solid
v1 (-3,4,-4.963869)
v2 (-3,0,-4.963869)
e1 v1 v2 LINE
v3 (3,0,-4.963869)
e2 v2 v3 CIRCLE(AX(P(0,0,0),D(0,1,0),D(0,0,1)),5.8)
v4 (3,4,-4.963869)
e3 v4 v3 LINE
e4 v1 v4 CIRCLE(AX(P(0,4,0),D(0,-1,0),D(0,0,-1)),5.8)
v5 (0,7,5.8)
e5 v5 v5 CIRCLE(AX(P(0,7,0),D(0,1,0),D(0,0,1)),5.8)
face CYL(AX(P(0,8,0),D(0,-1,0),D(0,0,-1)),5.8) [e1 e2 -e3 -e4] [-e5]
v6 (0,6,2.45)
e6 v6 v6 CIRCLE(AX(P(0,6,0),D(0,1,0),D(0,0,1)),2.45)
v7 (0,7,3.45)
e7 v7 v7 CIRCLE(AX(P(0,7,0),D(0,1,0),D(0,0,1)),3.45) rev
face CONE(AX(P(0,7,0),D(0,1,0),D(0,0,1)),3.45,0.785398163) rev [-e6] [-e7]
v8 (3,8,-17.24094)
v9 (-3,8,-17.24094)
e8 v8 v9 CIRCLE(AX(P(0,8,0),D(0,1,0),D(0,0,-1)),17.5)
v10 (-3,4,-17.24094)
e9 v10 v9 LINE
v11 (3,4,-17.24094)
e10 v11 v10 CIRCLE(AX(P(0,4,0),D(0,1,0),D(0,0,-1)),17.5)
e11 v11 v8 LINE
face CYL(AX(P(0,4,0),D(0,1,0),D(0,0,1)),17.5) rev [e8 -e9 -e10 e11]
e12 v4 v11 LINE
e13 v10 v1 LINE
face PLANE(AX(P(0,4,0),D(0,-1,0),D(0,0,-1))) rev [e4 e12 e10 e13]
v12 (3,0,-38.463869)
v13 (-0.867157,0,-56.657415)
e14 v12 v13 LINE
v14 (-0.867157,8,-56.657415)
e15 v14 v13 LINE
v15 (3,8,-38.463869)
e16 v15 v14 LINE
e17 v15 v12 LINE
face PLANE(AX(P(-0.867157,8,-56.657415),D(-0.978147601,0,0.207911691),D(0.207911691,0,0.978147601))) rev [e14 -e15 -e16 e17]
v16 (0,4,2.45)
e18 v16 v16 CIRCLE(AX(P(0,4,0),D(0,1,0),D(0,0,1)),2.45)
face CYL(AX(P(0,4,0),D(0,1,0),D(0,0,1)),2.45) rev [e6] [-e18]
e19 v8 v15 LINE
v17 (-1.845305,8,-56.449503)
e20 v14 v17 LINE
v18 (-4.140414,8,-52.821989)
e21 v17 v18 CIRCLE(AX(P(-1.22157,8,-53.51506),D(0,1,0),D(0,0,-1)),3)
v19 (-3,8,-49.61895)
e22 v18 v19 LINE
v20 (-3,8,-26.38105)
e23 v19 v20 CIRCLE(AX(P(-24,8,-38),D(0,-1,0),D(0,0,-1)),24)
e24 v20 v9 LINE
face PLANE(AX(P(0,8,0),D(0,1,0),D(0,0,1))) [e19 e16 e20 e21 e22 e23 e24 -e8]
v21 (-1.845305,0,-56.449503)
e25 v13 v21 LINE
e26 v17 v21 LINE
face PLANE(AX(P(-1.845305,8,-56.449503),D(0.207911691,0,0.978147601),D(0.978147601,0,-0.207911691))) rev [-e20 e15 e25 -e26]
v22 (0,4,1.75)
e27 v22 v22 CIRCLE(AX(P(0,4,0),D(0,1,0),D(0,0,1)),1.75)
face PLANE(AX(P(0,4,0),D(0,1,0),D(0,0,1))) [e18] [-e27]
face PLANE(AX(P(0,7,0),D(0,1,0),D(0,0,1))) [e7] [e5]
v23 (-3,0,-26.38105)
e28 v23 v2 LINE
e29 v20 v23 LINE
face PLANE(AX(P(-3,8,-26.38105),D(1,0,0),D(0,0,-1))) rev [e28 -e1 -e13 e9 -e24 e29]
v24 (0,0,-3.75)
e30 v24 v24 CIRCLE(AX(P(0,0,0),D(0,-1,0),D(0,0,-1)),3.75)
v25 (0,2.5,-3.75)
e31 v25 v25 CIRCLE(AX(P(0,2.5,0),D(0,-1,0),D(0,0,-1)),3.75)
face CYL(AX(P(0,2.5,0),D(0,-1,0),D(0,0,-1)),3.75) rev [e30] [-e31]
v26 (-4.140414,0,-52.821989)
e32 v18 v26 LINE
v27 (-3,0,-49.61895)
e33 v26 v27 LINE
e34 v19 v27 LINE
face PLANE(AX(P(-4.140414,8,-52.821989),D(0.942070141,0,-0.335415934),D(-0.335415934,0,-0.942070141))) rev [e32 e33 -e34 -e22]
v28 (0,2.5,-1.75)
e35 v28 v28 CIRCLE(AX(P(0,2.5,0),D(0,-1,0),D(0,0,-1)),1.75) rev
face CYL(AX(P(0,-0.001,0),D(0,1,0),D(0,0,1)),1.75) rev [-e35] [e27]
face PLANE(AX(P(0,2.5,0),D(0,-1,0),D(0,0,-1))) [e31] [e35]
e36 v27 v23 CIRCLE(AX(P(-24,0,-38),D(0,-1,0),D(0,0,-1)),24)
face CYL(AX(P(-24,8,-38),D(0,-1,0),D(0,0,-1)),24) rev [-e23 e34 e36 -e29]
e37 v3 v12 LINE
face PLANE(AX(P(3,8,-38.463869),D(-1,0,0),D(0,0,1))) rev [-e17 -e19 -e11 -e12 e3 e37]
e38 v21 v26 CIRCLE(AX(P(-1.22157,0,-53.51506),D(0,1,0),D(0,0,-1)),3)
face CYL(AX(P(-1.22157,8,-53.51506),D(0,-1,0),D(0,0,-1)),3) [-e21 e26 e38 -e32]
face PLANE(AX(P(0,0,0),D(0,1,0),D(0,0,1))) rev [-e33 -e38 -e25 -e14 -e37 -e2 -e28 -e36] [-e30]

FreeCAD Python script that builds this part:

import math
import FreeCAD as App
import Part
import Sketcher
Q = App.Units.Quantity


def edges_at(feature, points):
    """Names of the edges that pass closest to the given points."""
    edges = feature.Shape.Edges
    near = lambda p: min(range(len(edges)), key=lambda i: edges[i].distToShape(Part.Vertex(*p))[0])
    return sorted({f"Edge{near(p) + 1}" for p in points})

doc = App.newDocument("Part")
body = doc.addObject("PartDesign::Body", "Body")

# Sketch on XZ plane
sketch1 = body.newObject("Sketcher::SketchObject", "Sketch")
sketch1.AttachmentSupport = (doc.getObject("XZ_Plane"), [""])
sketch1.MapMode = "FlatFace"
sketch1.addGeometry(Part.LineSegment(App.Vector(-3, -26.4, 0), App.Vector(-3, -5, 0)), False)
sketch1.addGeometry(Part.ArcOfCircle(Part.Circle(App.Vector(0, 0, 0), App.Vector(0, 0, 1), 5.8), math.radians(-59), math.radians(239)), False)
sketch1.addGeometry(Part.LineSegment(App.Vector(3, -5, 0), App.Vector(3, -38.5, 0)), False)
sketch1.addGeometry(Part.LineSegment(App.Vector(3, -38.5, 0), App.Vector(-0.9, -56.7, 0)), False)
sketch1.addGeometry(Part.LineSegment(App.Vector(-0.9, -56.7, 0), App.Vector(-1.8, -56.4, 0)), False)
sketch1.addGeometry(Part.ArcOfCircle(Part.Circle(App.Vector(-1.2, -53.5, 0), App.Vector(0, 0, 1), 3), math.radians(167), math.radians(258)), False)
sketch1.addGeometry(Part.LineSegment(App.Vector(-4.1, -52.8, 0), App.Vector(-3, -49.6, 0)), False)
sketch1.addGeometry(Part.ArcOfCircle(Part.Circle(App.Vector(-24, -38, 0), App.Vector(0, 0, 1), 24), math.radians(-29), math.radians(29)), False)
sketch1.addConstraint(Sketcher.Constraint("Coincident", 0, 2, 1, 2))
sketch1.addConstraint(Sketcher.Constraint("Coincident", 1, 1, 2, 1))
sketch1.addConstraint(Sketcher.Constraint("Coincident", 2, 2, 3, 1))
sketch1.addConstraint(Sketcher.Constraint("Coincident", 3, 2, 4, 1))
sketch1.addConstraint(Sketcher.Constraint("Tangent", 4, 2, 5, 2))
sketch1.addConstraint(Sketcher.Constraint("Coincident", 5, 1, 6, 1))
sketch1.addConstraint(Sketcher.Constraint("Coincident", 6, 2, 7, 1))
sketch1.addConstraint(Sketcher.Constraint("Coincident", 7, 2, 0, 1))
sketch1.addConstraint(Sketcher.Constraint("Vertical", 0))
sketch1.addConstraint(Sketcher.Constraint("Vertical", 2))
sketch1.addConstraint(Sketcher.Constraint("Coincident", 1, 3, -1, 1))
sketch1.addConstraint(Sketcher.Constraint("Perpendicular", 3, 4))
sketch1.addConstraint(Sketcher.Constraint("Horizontal", 0, 2, 1, 1))
sketch1.addConstraint(Sketcher.Constraint("Vertical", 0, 2, 6, 2))
sketch1.addConstraint(Sketcher.Constraint("Radius", 5, Q("3 mm")))
sketch1.addConstraint(Sketcher.Constraint("Radius", 7, Q("24 mm")))
sketch1.addConstraint(Sketcher.Constraint("Radius", 1, Q("5.8 mm")))
sketch1.addConstraint(Sketcher.Constraint("Angle", 3, Q("-102 deg")))
sketch1.addConstraint(Sketcher.Constraint("Distance", 4, Q("1 mm")))
sketch1.addConstraint(Sketcher.Constraint("DistanceY", 2, 2, 2, 1, Q("33.5 mm")))
sketch1.addConstraint(Sketcher.Constraint("DistanceX", 7, 3, -1, 1, Q("24 mm")))
sketch1.addConstraint(Sketcher.Constraint("DistanceY", 7, 3, -1, 1, Q("38 mm")))
sketch1.addConstraint(Sketcher.Constraint("DistanceX", 0, 2, -1, 1, Q("3 mm")))
sketch1.addConstraint(Sketcher.Constraint("Distance", 3, Q("18.6 mm")))
sketch1.addConstraint(Sketcher.Constraint("Distance", 6, Q("3.4 mm")))
pad1 = body.newObject("PartDesign::Pad", "Pad")
pad1.Profile = sketch1
pad1.Length = 8
pad1.Reversed = True

# Sketch on XZ plane
sketch2 = body.newObject("Sketcher::SketchObject", "Sketch001")
sketch2.AttachmentSupport = (doc.getObject("XZ_Plane"), [""])
sketch2.MapMode = "FlatFace"
sketch2.AttachmentOffset = App.Placement(App.Vector(0, 0, -8), App.Rotation())
sketch2.addGeometry(Part.Circle(App.Vector(0, 0, 0), App.Vector(0, 0, 1), 2.5), False)
sketch2.addConstraint(Sketcher.Constraint("Coincident", 0, 3, -1, 1))
sketch2.addConstraint(Sketcher.Constraint("Diameter", 0, Q("4.9 mm")))
pocket1 = body.newObject("PartDesign::Pocket", "Pocket")
pocket1.Profile = sketch2
pocket1.Length = 4
pocket1.Reversed = True

# Sketch on XZ plane
sketch3 = body.newObject("Sketcher::SketchObject", "Sketch002")
sketch3.AttachmentSupport = (doc.getObject("XZ_Plane"), [""])
sketch3.MapMode = "FlatFace"
sketch3.AttachmentOffset = App.Placement(App.Vector(0, 0, -4), App.Rotation())
sketch3.addGeometry(Part.Circle(App.Vector(0, 0, 0), App.Vector(0, 0, 1), 1.8), False)
sketch3.addConstraint(Sketcher.Constraint("Coincident", 0, 3, -1, 1))
sketch3.addConstraint(Sketcher.Constraint("Diameter", 0, Q("3.5 mm")))
pocket2 = body.newObject("PartDesign::Pocket", "Pocket001")
pocket2.Profile = sketch3
pocket2.Type = "UpToFirst"
pocket2.Reversed = True

# Sketch on XZ plane
sketch4 = body.newObject("Sketcher::SketchObject", "Sketch003")
sketch4.AttachmentSupport = (doc.getObject("XZ_Plane"), [""])
sketch4.MapMode = "FlatFace"
sketch4.addGeometry(Part.Circle(App.Vector(0, 0, 0), App.Vector(0, 0, 1), 3.8), False)
sketch4.addConstraint(Sketcher.Constraint("Coincident", 0, 3, -1, 1))
sketch4.addConstraint(Sketcher.Constraint("Diameter", 0, Q("7.5 mm")))
pocket3 = body.newObject("PartDesign::Pocket", "Pocket002")
pocket3.Profile = sketch4
pocket3.Length = 2.5

# Sketch on XZ plane
sketch5 = body.newObject("Sketcher::SketchObject", "Sketch004")
sketch5.AttachmentSupport = (doc.getObject("XZ_Plane"), [""])
sketch5.MapMode = "FlatFace"
sketch5.AttachmentOffset = App.Placement(App.Vector(0, 0, -8), App.Rotation())
sketch5.addGeometry(Part.LineSegment(App.Vector(-3, -17, 0), App.Vector(-3, -5, 0)), False)
sketch5.addGeometry(Part.ArcOfCircle(Part.Circle(App.Vector(0, 0, 0), App.Vector(0, 0, 1), 6), math.radians(-121), math.radians(-59)), False)
sketch5.addGeometry(Part.LineSegment(App.Vector(3, -5, 0), App.Vector(3, -17, 0)), False)
sketch5.addGeometry(Part.ArcOfCircle(Part.Circle(App.Vector(0, 0, 0), App.Vector(0, 0, 1), 18), math.radians(-99.87), math.radians(-80.13)), False)
sketch5.addConstraint(Sketcher.Constraint("Coincident", 0, 2, 1, 1))
sketch5.addConstraint(Sketcher.Constraint("Coincident", 1, 2, 2, 1))
sketch5.addConstraint(Sketcher.Constraint("Coincident", 2, 2, 3, 2))
sketch5.addConstraint(Sketcher.Constraint("Coincident", 3, 1, 0, 1))
sketch5.addConstraint(Sketcher.Constraint("Vertical", 0))
sketch5.addConstraint(Sketcher.Constraint("Vertical", 2))
sketch5.addConstraint(Sketcher.Constraint("Coincident", 1, 3, -1, 1))
sketch5.addConstraint(Sketcher.Constraint("Coincident", 3, 3, -1, 1))
sketch5.addConstraint(Sketcher.Constraint("Horizontal", 0, 2, 1, 2))
sketch5.addConstraint(Sketcher.Constraint("Radius", 1, Q("5.8 mm")))
sketch5.addConstraint(Sketcher.Constraint("Radius", 3, Q("17.5 mm")))
sketch5.addConstraint(Sketcher.Constraint("DistanceX", 0, 2, -1, 1, Q("3 mm")))
pocket4 = body.newObject("PartDesign::Pocket", "Pocket003")
pocket4.Profile = sketch5
pocket4.Length = 4
pocket4.Reversed = True

# Sketch on XZ plane
sketch6 = body.newObject("Sketcher::SketchObject", "Sketch005")
sketch6.AttachmentSupport = (doc.getObject("XZ_Plane"), [""])
sketch6.MapMode = "FlatFace"
sketch6.AttachmentOffset = App.Placement(App.Vector(0, 0, -8), App.Rotation())
sketch6.addGeometry(Part.Circle(App.Vector(0, 0, 0), App.Vector(0, 0, 1), 6), False)
sketch6.addConstraint(Sketcher.Constraint("Coincident", 0, 3, -1, 1))
sketch6.addConstraint(Sketcher.Constraint("Diameter", 0, Q("11.6 mm")))
pocket5 = body.newObject("PartDesign::Pocket", "Pocket004")
pocket5.Profile = sketch6
pocket5.Length = 1
pocket5.Reversed = True
doc.recompute()

chamfer = body.newObject("PartDesign::Chamfer", "Chamfer")
chamfer.Base = (pocket5, edges_at(pocket5, [(0, 7, -2.45)]))
chamfer.Size = 1

doc.recompute()
